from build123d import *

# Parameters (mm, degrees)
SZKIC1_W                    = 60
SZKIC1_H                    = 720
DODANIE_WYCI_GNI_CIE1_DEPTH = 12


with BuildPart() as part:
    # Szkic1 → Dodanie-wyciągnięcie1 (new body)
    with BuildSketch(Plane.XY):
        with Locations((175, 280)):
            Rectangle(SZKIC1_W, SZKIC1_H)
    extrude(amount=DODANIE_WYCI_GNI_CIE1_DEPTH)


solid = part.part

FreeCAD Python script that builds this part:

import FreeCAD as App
import Part
import Sketcher
from FreeCAD import Vector


def add_polygon(sketch, points):
    """Adds a closed chain of lines whose ends are joined by coincident constraints."""
    first, n = sketch.GeometryCount, len(points)
    for a, b in zip(points, points[1:] + points[:1]):
        sketch.addGeometry(Part.LineSegment(App.Vector(*a, 0), App.Vector(*b, 0)), False)
    for i in range(n):
        sketch.addConstraint(Sketcher.Constraint("Coincident", first + i, 2, first + (i + 1) % n, 1))

doc = App.newDocument("Part")
body = doc.addObject("PartDesign::Body", "Body")

# Sketch on XY plane
sketch1 = body.newObject("Sketcher::SketchObject", "Sketch")
sketch1.AttachmentSupport = (doc.getObject("XY_Plane"), [""])
sketch1.MapMode = "FlatFace"
add_polygon(sketch1, [(145, 640), (145, -80), (205, -80), (205, 640)])  # lines 0-3
sketch1.addConstraint(Sketcher.Constraint("Vertical", 0))
sketch1.addConstraint(Sketcher.Constraint("Horizontal", 1))
sketch1.addConstraint(Sketcher.Constraint("Vertical", 2))
sketch1.addConstraint(Sketcher.Constraint("Horizontal", 3))
sketch1.addConstraint(Sketcher.Constraint("DistanceX", 1, 1, 1, 2, 60.0))
sketch1.addConstraint(Sketcher.Constraint("DistanceY", 0, 2, 0, 1, 720.0))
sketch1.addConstraint(Sketcher.Constraint("DistanceX", -1, 1, 0, 2, 145.0))
sketch1.addConstraint(Sketcher.Constraint("DistanceY", 0, 2, -1, 1, 80.0))
pad1 = body.newObject("PartDesign::Pad", "Pad")
pad1.Profile = sketch1
pad1.Length = 12

doc.recompute()
